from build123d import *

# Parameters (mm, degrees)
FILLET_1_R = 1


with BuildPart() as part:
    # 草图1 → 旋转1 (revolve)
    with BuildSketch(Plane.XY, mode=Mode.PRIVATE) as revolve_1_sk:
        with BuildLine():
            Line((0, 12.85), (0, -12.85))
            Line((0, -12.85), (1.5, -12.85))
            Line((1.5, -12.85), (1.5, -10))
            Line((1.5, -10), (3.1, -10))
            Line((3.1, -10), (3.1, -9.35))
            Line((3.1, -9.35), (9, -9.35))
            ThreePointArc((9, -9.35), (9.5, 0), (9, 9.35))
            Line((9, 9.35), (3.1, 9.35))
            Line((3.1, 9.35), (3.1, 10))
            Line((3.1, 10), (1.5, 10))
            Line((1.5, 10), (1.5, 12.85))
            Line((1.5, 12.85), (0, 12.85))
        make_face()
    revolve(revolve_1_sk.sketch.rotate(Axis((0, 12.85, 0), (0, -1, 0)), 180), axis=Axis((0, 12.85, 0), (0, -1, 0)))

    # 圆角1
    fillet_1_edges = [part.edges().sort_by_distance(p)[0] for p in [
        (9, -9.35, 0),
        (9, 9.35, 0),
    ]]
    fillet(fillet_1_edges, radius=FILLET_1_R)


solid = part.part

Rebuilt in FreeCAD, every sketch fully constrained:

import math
import FreeCAD as App
import Part
import Sketcher
from FreeCAD import Vector


def edges_at(feature, points):
    """Names of the edges that pass closest to the given points."""
    edges = feature.Shape.Edges
    near = lambda p: min(range(len(edges)), key=lambda i: edges[i].distToShape(Part.Vertex(*p))[0])
    return sorted({f"Edge{near(p) + 1}" for p in points})

doc = App.newDocument("Part")
body = doc.addObject("PartDesign::Body", "Body")

# Sketch on XY plane
sketch1 = body.newObject("Sketcher::SketchObject", "Sketch")
sketch1.AttachmentSupport = (doc.getObject("XY_Plane"), [""])
sketch1.MapMode = "FlatFace"
sketch1.addGeometry([
    Part.LineSegment(Vector(0, 12.8, 0), Vector(0, -12.8, 0)),  # 0
    Part.LineSegment(Vector(0, -12.8, 0), Vector(1.5, -12.8, 0)),  # 1
    Part.LineSegment(Vector(1.5, -12.8, 0), Vector(1.5, -10, 0)),  # 2
    Part.LineSegment(Vector(1.5, -10, 0), Vector(3.1, -10, 0)),  # 3
    Part.LineSegment(Vector(3.1, -10, 0), Vector(3.1, -9.3, 0)),  # 4
    Part.LineSegment(Vector(3.1, -9.3, 0), Vector(9, -9.3, 0)),  # 5
    Part.ArcOfCircle(Part.Circle(Vector(-78.2, 0, 0), Vector(0, 0, 1), 87.7), math.radians(-6.12), math.radians(6.12)),  # 6
    Part.LineSegment(Vector(9, 9.3, 0), Vector(3.1, 9.3, 0)),  # 7
    Part.LineSegment(Vector(3.1, 9.3, 0), Vector(3.1, 10, 0)),  # 8
    Part.LineSegment(Vector(3.1, 10, 0), Vector(1.5, 10, 0)),  # 9
    Part.LineSegment(Vector(1.5, 10, 0), Vector(1.5, 12.8, 0)),  # 10
    Part.LineSegment(Vector(1.5, 12.8, 0), Vector(0, 12.8, 0)),  # 11
], False)
sketch1.addConstraint([
    Sketcher.Constraint("Coincident", 0, 2, 1, 1),
    Sketcher.Constraint("Coincident", 1, 2, 2, 1),
    Sketcher.Constraint("Coincident", 2, 2, 3, 1),
    Sketcher.Constraint("Coincident", 3, 2, 4, 1),
    Sketcher.Constraint("Coincident", 4, 2, 5, 1),
    Sketcher.Constraint("Coincident", 5, 2, 6, 1),
    Sketcher.Constraint("Coincident", 6, 2, 7, 1),
    Sketcher.Constraint("Coincident", 7, 2, 8, 1),
    Sketcher.Constraint("Coincident", 8, 2, 9, 1),
    Sketcher.Constraint("Coincident", 9, 2, 10, 1),
    Sketcher.Constraint("Coincident", 10, 2, 11, 1),
    Sketcher.Constraint("Coincident", 11, 2, 0, 1),
    Sketcher.Constraint("Vertical", 0),
    Sketcher.Constraint("Horizontal", 1),
    Sketcher.Constraint("Vertical", 2),
    Sketcher.Constraint("Horizontal", 3),
    Sketcher.Constraint("Vertical", 4),
    Sketcher.Constraint("Horizontal", 5),
    Sketcher.Constraint("Horizontal", 7),
    Sketcher.Constraint("Vertical", 8),
    Sketcher.Constraint("Horizontal", 9),
    Sketcher.Constraint("Vertical", 10),
    Sketcher.Constraint("Horizontal", 11),
    Sketcher.Constraint("Symmetric", 0, 2, 11, 2, -1, 1),
    Sketcher.Constraint("Symmetric", 5, 2, 6, 2, -1),
    Sketcher.Constraint("Symmetric", 3, 2, 8, 2, -1),
    Sketcher.Constraint("Vertical", 2, 2, 9, 2),
    Sketcher.Constraint("DistanceX", 1, 1, 1, 2, 1.5),
    Sketcher.Constraint("DistanceX", 3, 1, 3, 2, 1.6),
    Sketcher.Constraint("DistanceX", 5, 1, 5, 2, 5.9),
    Sketcher.Constraint("DistanceY", 0, 2, 0, 1, 25.7),
    Sketcher.Constraint("DistanceY", 2, 2, -1, 1, 10.0),
    Sketcher.Constraint("DistanceY", 4, 1, 4, 2, 0.65),
    Sketcher.Constraint("Radius", 6, 87.6725),
])
revolution = body.newObject("PartDesign::Revolution", "Revolution")
revolution.Profile = sketch1
revolution.ReferenceAxis = (sketch1, ["V_Axis"])
revolution.Angle = 360
doc.recompute()

fillet = body.newObject("PartDesign::Fillet", "Fillet")
fillet.Base = (revolution, edges_at(revolution, [(9, -9.35, 0), (9, 9.35, 0)]))
fillet.Radius = 1

doc.recompute()
